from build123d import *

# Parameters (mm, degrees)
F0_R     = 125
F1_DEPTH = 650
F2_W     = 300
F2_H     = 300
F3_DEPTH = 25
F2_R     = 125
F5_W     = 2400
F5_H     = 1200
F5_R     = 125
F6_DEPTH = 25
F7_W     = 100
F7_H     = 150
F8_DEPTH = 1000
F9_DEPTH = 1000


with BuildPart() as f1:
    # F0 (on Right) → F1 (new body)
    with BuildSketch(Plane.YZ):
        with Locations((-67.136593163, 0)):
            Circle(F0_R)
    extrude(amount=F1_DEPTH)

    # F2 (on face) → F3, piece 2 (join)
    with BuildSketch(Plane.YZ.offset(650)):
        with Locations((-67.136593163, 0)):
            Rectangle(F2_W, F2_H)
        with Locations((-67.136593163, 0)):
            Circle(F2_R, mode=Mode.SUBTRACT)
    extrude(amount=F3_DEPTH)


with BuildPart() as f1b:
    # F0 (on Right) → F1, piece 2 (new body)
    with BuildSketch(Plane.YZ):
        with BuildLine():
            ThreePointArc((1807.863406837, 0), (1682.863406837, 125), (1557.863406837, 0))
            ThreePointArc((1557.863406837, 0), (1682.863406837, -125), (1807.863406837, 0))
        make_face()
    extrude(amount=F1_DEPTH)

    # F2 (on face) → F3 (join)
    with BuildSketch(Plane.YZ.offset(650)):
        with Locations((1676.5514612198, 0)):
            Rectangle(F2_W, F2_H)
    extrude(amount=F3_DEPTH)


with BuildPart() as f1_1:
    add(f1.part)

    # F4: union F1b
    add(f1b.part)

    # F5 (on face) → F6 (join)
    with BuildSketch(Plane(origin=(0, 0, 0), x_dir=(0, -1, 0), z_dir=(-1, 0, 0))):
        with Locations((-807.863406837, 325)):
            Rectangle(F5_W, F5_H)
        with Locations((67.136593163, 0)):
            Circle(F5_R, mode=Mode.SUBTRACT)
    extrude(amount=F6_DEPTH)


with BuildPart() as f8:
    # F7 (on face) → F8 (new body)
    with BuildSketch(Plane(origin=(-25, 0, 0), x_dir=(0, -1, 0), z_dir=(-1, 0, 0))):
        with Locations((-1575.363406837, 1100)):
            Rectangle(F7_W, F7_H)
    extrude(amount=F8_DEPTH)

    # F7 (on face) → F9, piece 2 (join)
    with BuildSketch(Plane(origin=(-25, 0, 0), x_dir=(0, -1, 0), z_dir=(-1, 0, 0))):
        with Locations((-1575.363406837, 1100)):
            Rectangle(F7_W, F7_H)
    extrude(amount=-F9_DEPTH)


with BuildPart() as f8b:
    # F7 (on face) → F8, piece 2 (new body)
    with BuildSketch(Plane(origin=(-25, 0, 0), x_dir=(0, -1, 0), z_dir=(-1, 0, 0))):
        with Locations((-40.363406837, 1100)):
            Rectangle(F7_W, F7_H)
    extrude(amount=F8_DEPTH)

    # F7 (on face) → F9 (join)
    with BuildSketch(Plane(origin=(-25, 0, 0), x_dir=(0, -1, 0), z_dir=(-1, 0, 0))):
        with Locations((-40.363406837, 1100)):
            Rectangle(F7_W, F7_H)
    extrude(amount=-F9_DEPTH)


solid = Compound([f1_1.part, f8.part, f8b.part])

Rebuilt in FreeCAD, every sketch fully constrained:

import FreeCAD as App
import Part
import Sketcher


def add_polygon(sketch, points):
    """Adds a closed chain of lines whose ends are joined by coincident constraints."""
    first, n = sketch.GeometryCount, len(points)
    for a, b in zip(points, points[1:] + points[:1]):
        sketch.addGeometry(Part.LineSegment(App.Vector(*a, 0), App.Vector(*b, 0)), False)
    for i in range(n):
        sketch.addConstraint(Sketcher.Constraint("Coincident", first + i, 2, first + (i + 1) % n, 1))

doc = App.newDocument("Part")
body = doc.addObject("PartDesign::Body", "Body")
body.AllowCompound = True

sketch1 = body.newObject("Sketcher::SketchObject", "Sketch")
sketch1.AttachmentSupport = (doc.getObject("YZ_Plane"), [""])
sketch1.MapMode = "FlatFace"
sketch1.addGeometry(Part.Circle(App.Vector(-67, 0, 0), App.Vector(0, 0, 1), 125), False)
sketch1.addConstraint([
    Sketcher.Constraint("PointOnObject", 0, 3, -1),
    Sketcher.Constraint("Diameter", 0, 250.0),
    Sketcher.Constraint("DistanceX", 0, 3, -1, 1, 67.136593),
])
pad1 = body.newObject("PartDesign::Pad", "Pad")
pad1.Profile = sketch1
pad1.Length = 650

sketch2 = body.newObject("Sketcher::SketchObject", "Sketch001")
sketch2.AttachmentSupport = (doc.getObject("YZ_Plane"), [""])
sketch2.MapMode = "FlatFace"
sketch2.AttachmentOffset = App.Placement(App.Vector(0, 0, 650), App.Rotation())
add_polygon(sketch2, [(-217, 150), (-217, -150), (83, -150), (83, 150)])
sketch2.addGeometry(Part.Circle(App.Vector(-67, 0, 0), App.Vector(0, 0, 1), 125), False)
sketch2.addConstraint([
    Sketcher.Constraint("Vertical", 0),
    Sketcher.Constraint("Horizontal", 1),
    Sketcher.Constraint("Vertical", 2),
    Sketcher.Constraint("Horizontal", 3),
    Sketcher.Constraint("PointOnObject", 4, 3, -1),
    Sketcher.Constraint("Equal", 3, 0),
    Sketcher.Constraint("Diameter", 4, 250.0),
    Sketcher.Constraint("DistanceX", 1, 1, 1, 2, 300.0),
    Sketcher.Constraint("DistanceY", 0, 2, -1, 1, 150.0),
    Sketcher.Constraint("DistanceX", 0, 2, 4, 3, 150.0),
    Sketcher.Constraint("DistanceX", 4, 3, -1, 1, 67.136593),
])
pad2 = body.newObject("PartDesign::Pad", "Pad001")
pad2.Profile = sketch2
pad2.Length = 25
body2 = doc.addObject("PartDesign::Body", "Body001")

sketch3 = body2.newObject("Sketcher::SketchObject", "Sketch002")
sketch3.AttachmentSupport = (doc.getObject("YZ_Plane001"), [""])
sketch3.MapMode = "FlatFace"
sketch3.addGeometry(Part.Circle(App.Vector(1683, 0, 0), App.Vector(0, 0, 1), 125), False)
sketch3.addConstraint([
    Sketcher.Constraint("PointOnObject", 0, 3, -1),
    Sketcher.Constraint("Diameter", 0, 250.0),
    Sketcher.Constraint("DistanceX", -1, 1, 0, 3, 1682.863407),
])
pad3 = body2.newObject("PartDesign::Pad", "Pad002")
pad3.Profile = sketch3
pad3.Length = 650

sketch4 = body2.newObject("Sketcher::SketchObject", "Sketch003")
sketch4.AttachmentSupport = (doc.getObject("YZ_Plane001"), [""])
sketch4.MapMode = "FlatFace"
sketch4.AttachmentOffset = App.Placement(App.Vector(0, 0, 650), App.Rotation())
add_polygon(sketch4, [(1527, 150), (1527, -150), (1827, -150), (1827, 150)])
sketch4.addConstraint([
    Sketcher.Constraint("Vertical", 0),
    Sketcher.Constraint("Horizontal", 1),
    Sketcher.Constraint("Vertical", 2),
    Sketcher.Constraint("Horizontal", 3),
    Sketcher.Constraint("Equal", 3, 0),
    Sketcher.Constraint("DistanceX", 1, 1, 1, 2, 300.0),
    Sketcher.Constraint("DistanceY", 0, 2, -1, 1, 150.0),
    Sketcher.Constraint("DistanceX", -1, 1, 0, 2, 1526.551461),
])
pad4 = body2.newObject("PartDesign::Pad", "Pad003")
pad4.Profile = sketch4
pad4.Length = 25
body.AllowCompound = True
doc.recompute()

boolean = body.newObject("PartDesign::Boolean", "Boolean")
boolean.Type = "Fuse"
boolean.addObjects([body2])

sketch5 = body.newObject("Sketcher::SketchObject", "Sketch004")
sketch5.AttachmentSupport = (doc.getObject("YZ_Plane"), [""])
sketch5.MapMode = "FlatFace"
add_polygon(sketch5, [(2008, 925), (2008, -275), (-392, -275), (-392, 925)])
sketch5.addGeometry(Part.Circle(App.Vector(-67, 0, 0), App.Vector(0, 0, 1), 125), False)
sketch5.addConstraint([
    Sketcher.Constraint("Vertical", 0),
    Sketcher.Constraint("Horizontal", 1),
    Sketcher.Constraint("Vertical", 2),
    Sketcher.Constraint("Horizontal", 3),
    Sketcher.Constraint("PointOnObject", 4, 3, -1),
    Sketcher.Constraint("Diameter", 4, 250.0),
    Sketcher.Constraint("DistanceX", 1, 2, 1, 1, 2400.0),
    Sketcher.Constraint("DistanceY", 0, 2, 0, 1, 1200.0),
    Sketcher.Constraint("DistanceY", 0, 2, -1, 1, 275.0),
    Sketcher.Constraint("DistanceX", 4, 3, 0, 2, 2075.0),
    Sketcher.Constraint("DistanceX", 4, 3, -1, 1, 67.136593),
])
pad5 = body.newObject("PartDesign::Pad", "Pad004")
pad5.Profile = sketch5
pad5.Length = 25
pad5.Reversed = True
body3 = doc.addObject("PartDesign::Body", "Body002")

sketch6 = body3.newObject("Sketcher::SketchObject", "Sketch005")
sketch6.AttachmentSupport = (doc.getObject("YZ_Plane002"), [""])
sketch6.MapMode = "FlatFace"
sketch6.AttachmentOffset = App.Placement(App.Vector(0, 0, -25), App.Rotation())
add_polygon(sketch6, [(1625, 1175), (1625, 1025), (1525, 1025), (1525, 1175)])
sketch6.addConstraint([
    Sketcher.Constraint("Vertical", 0),
    Sketcher.Constraint("Horizontal", 1),
    Sketcher.Constraint("Vertical", 2),
    Sketcher.Constraint("Horizontal", 3),
    Sketcher.Constraint("DistanceX", 1, 2, 1, 1, 100.0),
    Sketcher.Constraint("DistanceY", 0, 2, 0, 1, 150.0),
    Sketcher.Constraint("DistanceY", -1, 1, 0, 2, 1025.0),
    Sketcher.Constraint("DistanceX", -1, 1, 0, 2, 1625.363407),
])
pad6 = body3.newObject("PartDesign::Pad", "Pad005")
pad6.Profile = sketch6
pad6.Length = 1000
pad6.Reversed = True

sketch7 = body3.newObject("Sketcher::SketchObject", "Sketch006")
sketch7.AttachmentSupport = (doc.getObject("YZ_Plane002"), [""])
sketch7.MapMode = "FlatFace"
sketch7.AttachmentOffset = App.Placement(App.Vector(0, 0, -25), App.Rotation())
add_polygon(sketch7, [(1625, 1175), (1625, 1025), (1525, 1025), (1525, 1175)])
sketch7.addConstraint([
    Sketcher.Constraint("Vertical", 0),
    Sketcher.Constraint("Horizontal", 1),
    Sketcher.Constraint("Vertical", 2),
    Sketcher.Constraint("Horizontal", 3),
    Sketcher.Constraint("DistanceX", 1, 2, 1, 1, 100.0),
    Sketcher.Constraint("DistanceY", 0, 2, 0, 1, 150.0),
    Sketcher.Constraint("DistanceY", -1, 1, 0, 2, 1025.0),
    Sketcher.Constraint("DistanceX", -1, 1, 0, 2, 1625.363407),
])
pad7 = body3.newObject("PartDesign::Pad", "Pad006")
pad7.Profile = sketch7
pad7.Length = 1000
body4 = doc.addObject("PartDesign::Body", "Body003")

sketch8 = body4.newObject("Sketcher::SketchObject", "Sketch007")
sketch8.AttachmentSupport = (doc.getObject("YZ_Plane003"), [""])
sketch8.MapMode = "FlatFace"
sketch8.AttachmentOffset = App.Placement(App.Vector(0, 0, -25), App.Rotation())
add_polygon(sketch8, [(90, 1175), (90, 1025), (-10, 1025), (-10, 1175)])
sketch8.addConstraint([
    Sketcher.Constraint("Vertical", 0),
    Sketcher.Constraint("Horizontal", 1),
    Sketcher.Constraint("Vertical", 2),
    Sketcher.Constraint("Horizontal", 3),
    Sketcher.Constraint("DistanceX", 1, 2, 1, 1, 100.0),
    Sketcher.Constraint("DistanceY", 0, 2, 0, 1, 150.0),
    Sketcher.Constraint("DistanceY", -1, 1, 0, 2, 1025.0),
    Sketcher.Constraint("DistanceX", -1, 1, 0, 2, 90.363407),
])
pad8 = body4.newObject("PartDesign::Pad", "Pad007")
pad8.Profile = sketch8
pad8.Length = 1000
pad8.Reversed = True

sketch9 = body4.newObject("Sketcher::SketchObject", "Sketch008")
sketch9.AttachmentSupport = (doc.getObject("YZ_Plane003"), [""])
sketch9.MapMode = "FlatFace"
sketch9.AttachmentOffset = App.Placement(App.Vector(0, 0, -25), App.Rotation())
add_polygon(sketch9, [(90, 1175), (90, 1025), (-10, 1025), (-10, 1175)])
sketch9.addConstraint([
    Sketcher.Constraint("Vertical", 0),
    Sketcher.Constraint("Horizontal", 1),
    Sketcher.Constraint("Vertical", 2),
    Sketcher.Constraint("Horizontal", 3),
    Sketcher.Constraint("DistanceX", 1, 2, 1, 1, 100.0),
    Sketcher.Constraint("DistanceY", 0, 2, 0, 1, 150.0),
    Sketcher.Constraint("DistanceY", -1, 1, 0, 2, 1025.0),
    Sketcher.Constraint("DistanceX", -1, 1, 0, 2, 90.363407),
])
pad9 = body4.newObject("PartDesign::Pad", "Pad008")
pad9.Profile = sketch9
pad9.Length = 1000

doc.recompute()
